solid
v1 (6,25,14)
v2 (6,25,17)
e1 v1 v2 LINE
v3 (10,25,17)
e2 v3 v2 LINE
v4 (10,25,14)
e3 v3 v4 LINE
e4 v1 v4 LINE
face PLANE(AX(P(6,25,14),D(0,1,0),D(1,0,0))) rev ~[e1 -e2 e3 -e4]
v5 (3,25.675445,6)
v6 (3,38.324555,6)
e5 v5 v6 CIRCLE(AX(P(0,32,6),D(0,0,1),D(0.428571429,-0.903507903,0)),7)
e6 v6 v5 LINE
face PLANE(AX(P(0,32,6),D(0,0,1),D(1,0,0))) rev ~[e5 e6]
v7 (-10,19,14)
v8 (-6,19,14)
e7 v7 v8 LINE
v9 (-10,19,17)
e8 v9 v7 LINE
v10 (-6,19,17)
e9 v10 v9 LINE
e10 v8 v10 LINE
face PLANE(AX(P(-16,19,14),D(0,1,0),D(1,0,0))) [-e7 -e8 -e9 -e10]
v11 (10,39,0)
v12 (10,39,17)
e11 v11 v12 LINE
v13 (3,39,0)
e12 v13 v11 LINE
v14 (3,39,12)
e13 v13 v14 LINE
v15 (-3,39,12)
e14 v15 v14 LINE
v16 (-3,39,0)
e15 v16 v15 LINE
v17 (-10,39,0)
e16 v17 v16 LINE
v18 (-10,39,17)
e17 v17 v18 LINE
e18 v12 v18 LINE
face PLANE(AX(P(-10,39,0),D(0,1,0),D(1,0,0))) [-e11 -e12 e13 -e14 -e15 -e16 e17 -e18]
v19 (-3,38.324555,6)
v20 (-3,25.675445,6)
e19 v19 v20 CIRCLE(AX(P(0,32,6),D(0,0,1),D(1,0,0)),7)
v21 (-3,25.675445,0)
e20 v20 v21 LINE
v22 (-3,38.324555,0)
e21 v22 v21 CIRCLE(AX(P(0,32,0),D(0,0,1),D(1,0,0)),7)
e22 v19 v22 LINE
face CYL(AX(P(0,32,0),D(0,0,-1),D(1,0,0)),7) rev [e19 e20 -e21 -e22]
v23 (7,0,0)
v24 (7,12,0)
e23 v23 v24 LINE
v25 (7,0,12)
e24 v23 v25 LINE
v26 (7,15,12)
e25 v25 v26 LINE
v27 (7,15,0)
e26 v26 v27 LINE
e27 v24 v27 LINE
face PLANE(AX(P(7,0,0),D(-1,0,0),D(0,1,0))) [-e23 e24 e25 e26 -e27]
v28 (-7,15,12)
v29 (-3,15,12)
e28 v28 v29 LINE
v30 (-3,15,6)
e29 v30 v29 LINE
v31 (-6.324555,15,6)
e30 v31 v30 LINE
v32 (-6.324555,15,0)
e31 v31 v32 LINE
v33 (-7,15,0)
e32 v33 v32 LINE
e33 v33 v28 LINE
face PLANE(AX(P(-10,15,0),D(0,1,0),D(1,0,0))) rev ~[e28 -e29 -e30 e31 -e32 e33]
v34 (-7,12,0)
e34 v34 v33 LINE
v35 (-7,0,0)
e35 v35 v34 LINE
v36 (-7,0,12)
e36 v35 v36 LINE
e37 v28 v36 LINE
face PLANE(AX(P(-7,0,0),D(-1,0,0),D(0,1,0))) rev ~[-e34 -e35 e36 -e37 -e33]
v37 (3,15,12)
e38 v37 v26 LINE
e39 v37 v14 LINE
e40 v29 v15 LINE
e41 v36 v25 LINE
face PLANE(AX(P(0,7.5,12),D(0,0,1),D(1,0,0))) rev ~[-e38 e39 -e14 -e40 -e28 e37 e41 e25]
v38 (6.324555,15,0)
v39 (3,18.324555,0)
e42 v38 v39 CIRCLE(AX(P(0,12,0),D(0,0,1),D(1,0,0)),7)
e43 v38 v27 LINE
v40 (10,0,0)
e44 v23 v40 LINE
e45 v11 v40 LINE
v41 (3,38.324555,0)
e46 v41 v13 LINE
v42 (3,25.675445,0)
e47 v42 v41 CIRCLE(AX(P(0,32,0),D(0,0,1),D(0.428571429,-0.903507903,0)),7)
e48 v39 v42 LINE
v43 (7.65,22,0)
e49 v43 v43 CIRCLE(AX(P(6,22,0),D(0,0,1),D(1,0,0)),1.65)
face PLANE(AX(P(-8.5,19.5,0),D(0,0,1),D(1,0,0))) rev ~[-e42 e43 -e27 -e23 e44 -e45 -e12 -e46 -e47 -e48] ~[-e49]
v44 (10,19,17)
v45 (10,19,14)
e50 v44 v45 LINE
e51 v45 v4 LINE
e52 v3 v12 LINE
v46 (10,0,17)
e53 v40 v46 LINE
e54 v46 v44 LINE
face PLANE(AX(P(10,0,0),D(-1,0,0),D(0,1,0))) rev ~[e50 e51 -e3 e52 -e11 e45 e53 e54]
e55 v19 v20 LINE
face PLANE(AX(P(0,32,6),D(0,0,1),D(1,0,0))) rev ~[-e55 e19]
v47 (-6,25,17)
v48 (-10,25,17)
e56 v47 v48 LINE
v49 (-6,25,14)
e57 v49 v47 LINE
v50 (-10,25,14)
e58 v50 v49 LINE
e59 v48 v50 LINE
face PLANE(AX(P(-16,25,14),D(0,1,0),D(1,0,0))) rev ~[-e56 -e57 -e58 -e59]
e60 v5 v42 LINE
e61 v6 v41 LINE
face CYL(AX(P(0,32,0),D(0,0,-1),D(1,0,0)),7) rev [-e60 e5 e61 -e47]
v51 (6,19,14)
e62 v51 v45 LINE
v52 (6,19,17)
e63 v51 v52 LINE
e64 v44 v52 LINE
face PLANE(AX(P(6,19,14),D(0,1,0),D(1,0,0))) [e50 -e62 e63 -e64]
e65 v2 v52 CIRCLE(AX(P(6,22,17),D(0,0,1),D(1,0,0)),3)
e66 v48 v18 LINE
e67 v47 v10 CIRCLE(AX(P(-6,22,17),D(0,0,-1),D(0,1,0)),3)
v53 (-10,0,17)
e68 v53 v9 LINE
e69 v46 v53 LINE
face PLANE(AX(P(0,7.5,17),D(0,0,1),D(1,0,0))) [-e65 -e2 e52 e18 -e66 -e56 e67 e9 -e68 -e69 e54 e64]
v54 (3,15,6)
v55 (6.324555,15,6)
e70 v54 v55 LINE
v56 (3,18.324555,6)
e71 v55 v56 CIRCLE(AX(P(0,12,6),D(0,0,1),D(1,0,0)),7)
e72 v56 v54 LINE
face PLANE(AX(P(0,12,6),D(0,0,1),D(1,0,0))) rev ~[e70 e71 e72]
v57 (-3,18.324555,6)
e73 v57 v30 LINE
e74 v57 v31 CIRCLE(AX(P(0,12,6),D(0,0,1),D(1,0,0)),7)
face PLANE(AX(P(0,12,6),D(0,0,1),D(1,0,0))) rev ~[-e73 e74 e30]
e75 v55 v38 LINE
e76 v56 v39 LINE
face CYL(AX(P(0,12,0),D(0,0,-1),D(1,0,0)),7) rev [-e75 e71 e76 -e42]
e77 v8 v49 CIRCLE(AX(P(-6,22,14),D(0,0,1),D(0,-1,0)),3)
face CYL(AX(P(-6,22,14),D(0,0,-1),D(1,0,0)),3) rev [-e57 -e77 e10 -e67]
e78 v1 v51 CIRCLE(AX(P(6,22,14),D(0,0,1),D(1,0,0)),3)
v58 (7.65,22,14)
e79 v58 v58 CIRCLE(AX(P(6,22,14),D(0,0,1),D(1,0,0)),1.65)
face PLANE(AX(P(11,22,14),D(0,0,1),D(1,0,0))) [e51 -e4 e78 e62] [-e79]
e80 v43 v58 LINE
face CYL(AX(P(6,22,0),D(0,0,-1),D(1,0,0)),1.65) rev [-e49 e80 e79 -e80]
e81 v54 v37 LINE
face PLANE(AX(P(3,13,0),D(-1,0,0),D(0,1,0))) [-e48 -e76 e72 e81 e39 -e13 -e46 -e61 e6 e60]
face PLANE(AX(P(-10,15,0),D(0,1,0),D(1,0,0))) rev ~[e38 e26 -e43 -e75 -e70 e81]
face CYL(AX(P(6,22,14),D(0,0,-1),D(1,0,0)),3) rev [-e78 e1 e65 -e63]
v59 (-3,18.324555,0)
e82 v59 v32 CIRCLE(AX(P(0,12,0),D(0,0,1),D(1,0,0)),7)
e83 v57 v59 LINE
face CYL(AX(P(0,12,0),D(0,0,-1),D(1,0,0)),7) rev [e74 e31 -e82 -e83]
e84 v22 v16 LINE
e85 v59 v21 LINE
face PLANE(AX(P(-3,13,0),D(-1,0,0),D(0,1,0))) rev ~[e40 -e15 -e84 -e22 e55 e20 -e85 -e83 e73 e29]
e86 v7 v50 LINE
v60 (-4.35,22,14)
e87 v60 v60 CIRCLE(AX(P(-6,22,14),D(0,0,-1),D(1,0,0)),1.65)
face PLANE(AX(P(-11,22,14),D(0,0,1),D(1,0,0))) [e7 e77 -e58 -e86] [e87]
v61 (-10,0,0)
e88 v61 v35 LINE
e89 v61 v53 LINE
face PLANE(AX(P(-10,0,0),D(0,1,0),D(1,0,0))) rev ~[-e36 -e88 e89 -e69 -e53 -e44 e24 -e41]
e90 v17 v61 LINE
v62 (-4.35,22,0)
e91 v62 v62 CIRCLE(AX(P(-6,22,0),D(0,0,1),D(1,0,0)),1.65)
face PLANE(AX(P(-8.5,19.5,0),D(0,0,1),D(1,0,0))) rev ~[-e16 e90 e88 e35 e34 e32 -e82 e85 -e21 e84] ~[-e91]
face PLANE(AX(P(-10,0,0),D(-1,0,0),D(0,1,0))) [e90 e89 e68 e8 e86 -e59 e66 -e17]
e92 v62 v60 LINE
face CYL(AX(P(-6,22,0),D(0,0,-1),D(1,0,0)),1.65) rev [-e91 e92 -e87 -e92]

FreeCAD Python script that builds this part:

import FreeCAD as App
import Part
import Sketcher
Q = App.Units.Quantity


def add_polygon(sketch, points):
    """Adds a closed chain of lines whose ends are joined by coincident constraints."""
    first, n = sketch.GeometryCount, len(points)
    for a, b in zip(points, points[1:] + points[:1]):
        sketch.addGeometry(Part.LineSegment(App.Vector(*a, 0), App.Vector(*b, 0)), False)
    for i in range(n):
        sketch.addConstraint(Sketcher.Constraint("Coincident", first + i, 2, first + (i + 1) % n, 1))

doc = App.newDocument("Part")
body = doc.addObject("PartDesign::Body", "Body")

# Sketch on XY plane
sketch1 = body.newObject("Sketcher::SketchObject", "Sketch")
sketch1.AttachmentSupport = (doc.getObject("XY_Plane"), [""])
sketch1.MapMode = "FlatFace"
sketch1.addGeometry(Part.Circle(App.Vector(6, 22, 0), App.Vector(0, 0, 1), 3), False)
sketch1.addConstraint([
    Sketcher.Constraint("Diameter", 0, Q("6 mm")),
    Sketcher.Constraint("DistanceX", -1, 1, 0, 3, Q("6 mm")),
    Sketcher.Constraint("DistanceY", -1, 1, 0, 3, Q("22 mm")),
])
pad1 = body.newObject("PartDesign::Pad", "Pad")
pad1.Profile = sketch1
pad1.Length = 3
body2 = doc.addObject("PartDesign::Body", "Body001")
body2.AllowCompound = True

# Sketch on XY plane
sketch2 = body2.newObject("Sketcher::SketchObject", "Sketch001")
sketch2.AttachmentSupport = (doc.getObject("XY_Plane001"), [""])
sketch2.MapMode = "FlatFace"
sketch2.addGeometry(Part.Circle(App.Vector(-6, 22, 0), App.Vector(0, 0, 1), 3), False)
sketch2.addConstraint([
    Sketcher.Constraint("Diameter", 0, Q("6 mm")),
    Sketcher.Constraint("DistanceX", 0, 3, -1, 1, Q("6 mm")),
    Sketcher.Constraint("DistanceY", -1, 1, 0, 3, Q("22 mm")),
])
pad2 = body2.newObject("PartDesign::Pad", "Pad001")
pad2.Profile = sketch2
pad2.Length = 3
doc.recompute()

boolean = body2.newObject("PartDesign::Boolean", "Boolean")
boolean.Type = "Fuse"
boolean.addObjects([body])
body3 = doc.addObject("PartDesign::Body", "Body002")
body3.AllowCompound = True
doc.recompute()

body2.Placement = App.Placement(App.Vector(0, 0, 14), App.Rotation(App.Vector(0, 0, 1), 0))
boolean2 = body3.newObject("PartDesign::Boolean", "Boolean001")
boolean2.Type = "Fuse"
boolean2.addObjects([body2])
body4 = doc.addObject("PartDesign::Body", "Body003")

# Sketch on XY plane
sketch3 = body4.newObject("Sketcher::SketchObject", "Sketch002")
sketch3.AttachmentSupport = (doc.getObject("XY_Plane003"), [""])
sketch3.MapMode = "FlatFace"
sketch3.AttachmentOffset = App.Placement(App.Vector(0, 0, 14), App.Rotation())
add_polygon(sketch3, [(6, 25), (6, 19), (16, 19), (16, 25)])  # lines 0-3
sketch3.addConstraint([
    Sketcher.Constraint("Vertical", 0),
    Sketcher.Constraint("Horizontal", 1),
    Sketcher.Constraint("Vertical", 2),
    Sketcher.Constraint("Horizontal", 3),
    Sketcher.Constraint("DistanceX", 1, 1, 1, 2, Q("10 mm")),
    Sketcher.Constraint("DistanceY", 0, 2, 0, 1, Q("6 mm")),
    Sketcher.Constraint("DistanceX", -1, 1, 0, 2, Q("6 mm")),
    Sketcher.Constraint("DistanceY", -1, 1, 0, 2, Q("19 mm")),
])
pad3 = body4.newObject("PartDesign::Pad", "Pad002")
pad3.Profile = sketch3
pad3.Length = 10
body5 = doc.addObject("PartDesign::Body", "Body004")
body5.AllowCompound = True

# Sketch on XY plane
sketch4 = body5.newObject("Sketcher::SketchObject", "Sketch003")
sketch4.AttachmentSupport = (doc.getObject("XY_Plane004"), [""])
sketch4.MapMode = "FlatFace"
sketch4.AttachmentOffset = App.Placement(App.Vector(0, 0, 14), App.Rotation())
add_polygon(sketch4, [(-16, 25), (-16, 19), (-6, 19), (-6, 25)])  # lines 0-3
sketch4.addConstraint([
    Sketcher.Constraint("Vertical", 0),
    Sketcher.Constraint("Horizontal", 1),
    Sketcher.Constraint("Vertical", 2),
    Sketcher.Constraint("Horizontal", 3),
    Sketcher.Constraint("DistanceX", 1, 1, 1, 2, Q("10 mm")),
    Sketcher.Constraint("DistanceY", 0, 2, 0, 1, Q("6 mm")),
    Sketcher.Constraint("DistanceX", 0, 2, -1, 1, Q("16 mm")),
    Sketcher.Constraint("DistanceY", -1, 1, 0, 2, Q("19 mm")),
])
pad4 = body5.newObject("PartDesign::Pad", "Pad003")
pad4.Profile = sketch4
pad4.Length = 10
doc.recompute()

boolean3 = body5.newObject("PartDesign::Boolean", "Boolean002")
boolean3.Type = "Fuse"
boolean3.addObjects([body4])
body6 = doc.addObject("PartDesign::Body", "Body005")

# Sketch on XY plane
sketch5 = body6.newObject("Sketcher::SketchObject", "Sketch004")
sketch5.AttachmentSupport = (doc.getObject("XY_Plane005"), [""])
sketch5.MapMode = "FlatFace"
sketch5.addGeometry(Part.Circle(App.Vector(-6, 22, 0), App.Vector(0, 0, 1), 1.6), False)
sketch5.addConstraint([
    Sketcher.Constraint("Diameter", 0, Q("3.3 mm")),
    Sketcher.Constraint("DistanceX", 0, 3, -1, 1, Q("6 mm")),
    Sketcher.Constraint("DistanceY", -1, 1, 0, 3, Q("22 mm")),
])
pad5 = body6.newObject("PartDesign::Pad", "Pad004")
pad5.Profile = sketch5
pad5.Length = 42
body7 = doc.addObject("PartDesign::Body", "Body006")
body7.AllowCompound = True

# Sketch on XY plane
sketch6 = body7.newObject("Sketcher::SketchObject", "Sketch005")
sketch6.AttachmentSupport = (doc.getObject("XY_Plane006"), [""])
sketch6.MapMode = "FlatFace"
sketch6.addGeometry(Part.Circle(App.Vector(6, 22, 0), App.Vector(0, 0, 1), 1.6), False)
sketch6.addConstraint([
    Sketcher.Constraint("Diameter", 0, Q("3.3 mm")),
    Sketcher.Constraint("DistanceX", -1, 1, 0, 3, Q("6 mm")),
    Sketcher.Constraint("DistanceY", -1, 1, 0, 3, Q("22 mm")),
])
pad6 = body7.newObject("PartDesign::Pad", "Pad005")
pad6.Profile = sketch6
pad6.Length = 42
doc.recompute()

boolean4 = body7.newObject("PartDesign::Boolean", "Boolean003")
boolean4.Type = "Fuse"
boolean4.addObjects([body6])
body8 = doc.addObject("PartDesign::Body", "Body007")

# Sketch on XY plane
sketch7 = body8.newObject("Sketcher::SketchObject", "Sketch006")
sketch7.AttachmentSupport = (doc.getObject("XY_Plane007"), [""])
sketch7.MapMode = "FlatFace"
add_polygon(sketch7, [(-3, 45), (-3, 13), (3, 13), (3, 45)])  # lines 0-3
sketch7.addConstraint([
    Sketcher.Constraint("Vertical", 0),
    Sketcher.Constraint("Horizontal", 1),
    Sketcher.Constraint("Vertical", 2),
    Sketcher.Constraint("Horizontal", 3),
    Sketcher.Constraint("DistanceX", 1, 1, 1, 2, Q("6 mm")),
    Sketcher.Constraint("DistanceY", 0, 2, 0, 1, Q("32 mm")),
    Sketcher.Constraint("DistanceX", 0, 2, -1, 1, Q("3 mm")),
    Sketcher.Constraint("DistanceY", -1, 1, 0, 2, Q("13 mm")),
])
pad7 = body8.newObject("PartDesign::Pad", "Pad006")
pad7.Profile = sketch7
pad7.Length = 12
body9 = doc.addObject("PartDesign::Body", "Body008")

# Sketch on XY plane
sketch8 = body9.newObject("Sketcher::SketchObject", "Sketch007")
sketch8.AttachmentSupport = (doc.getObject("XY_Plane008"), [""])
sketch8.MapMode = "FlatFace"
sketch8.addGeometry(Part.Circle(App.Vector(0, 32, 0), App.Vector(0, 0, 1), 7), False)
sketch8.addConstraint([
    Sketcher.Constraint("PointOnObject", 0, 3, -2),
    Sketcher.Constraint("Diameter", 0, Q("14 mm")),
    Sketcher.Constraint("DistanceY", -1, 1, 0, 3, Q("32 mm")),
])
pad8 = body9.newObject("PartDesign::Pad", "Pad007")
pad8.Profile = sketch8
pad8.Length = 6
body10 = doc.addObject("PartDesign::Body", "Body009")
body10.AllowCompound = True

# Sketch on XY plane
sketch9 = body10.newObject("Sketcher::SketchObject", "Sketch008")
sketch9.AttachmentSupport = (doc.getObject("XY_Plane009"), [""])
sketch9.MapMode = "FlatFace"
sketch9.addGeometry(Part.Circle(App.Vector(0, 12, 0), App.Vector(0, 0, 1), 7), False)
sketch9.addConstraint([
    Sketcher.Constraint("PointOnObject", 0, 3, -2),
    Sketcher.Constraint("Diameter", 0, Q("14 mm")),
    Sketcher.Constraint("DistanceY", -1, 1, 0, 3, Q("12 mm")),
])
pad9 = body10.newObject("PartDesign::Pad", "Pad008")
pad9.Profile = sketch9
pad9.Length = 6
doc.recompute()

boolean5 = body10.newObject("PartDesign::Boolean", "Boolean004")
boolean5.Type = "Fuse"
boolean5.addObjects([body9])
body11 = doc.addObject("PartDesign::Body", "Body010")

# Sketch on XY plane
sketch10 = body11.newObject("Sketcher::SketchObject", "Sketch009")
sketch10.AttachmentSupport = (doc.getObject("XY_Plane010"), [""])
sketch10.MapMode = "FlatFace"
add_polygon(sketch10, [(-10, 39), (-10, 15), (10, 15), (10, 39)])  # lines 0-3
sketch10.addConstraint([
    Sketcher.Constraint("Vertical", 0),
    Sketcher.Constraint("Horizontal", 1),
    Sketcher.Constraint("Vertical", 2),
    Sketcher.Constraint("Horizontal", 3),
    Sketcher.Constraint("DistanceX", 1, 1, 1, 2, Q("20 mm")),
    Sketcher.Constraint("DistanceY", 0, 2, 0, 1, Q("24 mm")),
    Sketcher.Constraint("DistanceX", 0, 2, -1, 1, Q("10 mm")),
    Sketcher.Constraint("DistanceY", -1, 1, 0, 2, Q("15 mm")),
])
pad10 = body11.newObject("PartDesign::Pad", "Pad009")
pad10.Profile = sketch10
pad10.Length = 17
body12 = doc.addObject("PartDesign::Body", "Body011")

# Sketch on XY plane
sketch11 = body12.newObject("Sketcher::SketchObject", "Sketch010")
sketch11.AttachmentSupport = (doc.getObject("XY_Plane011"), [""])
sketch11.MapMode = "FlatFace"
sketch11.AttachmentOffset = App.Placement(App.Vector(0, 0, 12), App.Rotation())
add_polygon(sketch11, [(-10, 15), (-10, 0), (10, 0), (10, 15)])  # lines 0-3
sketch11.addConstraint([
    Sketcher.Constraint("Vertical", 0),
    Sketcher.Constraint("Horizontal", 1),
    Sketcher.Constraint("Vertical", 2),
    Sketcher.Constraint("Horizontal", 3),
    Sketcher.Constraint("Symmetric", 0, 2, 1, 2, -1, 1),
    Sketcher.Constraint("DistanceX", 1, 1, 1, 2, Q("20 mm")),
    Sketcher.Constraint("DistanceY", 0, 2, 0, 1, Q("15 mm")),
])
pad11 = body12.newObject("PartDesign::Pad", "Pad010")
pad11.Profile = sketch11
pad11.Length = 5
body13 = doc.addObject("PartDesign::Body", "Body012")

# Sketch on XY plane
sketch12 = body13.newObject("Sketcher::SketchObject", "Sketch011")
sketch12.AttachmentSupport = (doc.getObject("XY_Plane012"), [""])
sketch12.MapMode = "FlatFace"
add_polygon(sketch12, [(-10, 39), (-10, 0), (-7, 0), (-7, 39)])  # lines 0-3
sketch12.addConstraint([
    Sketcher.Constraint("Vertical", 0),
    Sketcher.Constraint("Horizontal", 1),
    Sketcher.Constraint("Vertical", 2),
    Sketcher.Constraint("Horizontal", 3),
    Sketcher.Constraint("PointOnObject", 0, 2, -1),
    Sketcher.Constraint("DistanceX", 1, 1, 1, 2, Q("3 mm")),
    Sketcher.Constraint("DistanceY", 0, 2, 0, 1, Q("39 mm")),
    Sketcher.Constraint("DistanceX", 0, 2, -1, 1, Q("10 mm")),
])
pad12 = body13.newObject("PartDesign::Pad", "Pad011")
pad12.Profile = sketch12
pad12.Length = 17
body14 = doc.addObject("PartDesign::Body", "Body013")

# Sketch on XY plane
sketch13 = body14.newObject("Sketcher::SketchObject", "Sketch012")
sketch13.AttachmentSupport = (doc.getObject("XY_Plane013"), [""])
sketch13.MapMode = "FlatFace"
add_polygon(sketch13, [(7, 39), (7, 0), (10, 0), (10, 39)])  # lines 0-3
sketch13.addConstraint([
    Sketcher.Constraint("Vertical", 0),
    Sketcher.Constraint("Horizontal", 1),
    Sketcher.Constraint("Vertical", 2),
    Sketcher.Constraint("Horizontal", 3),
    Sketcher.Constraint("PointOnObject", 0, 2, -1),
    Sketcher.Constraint("DistanceX", 1, 1, 1, 2, Q("3 mm")),
    Sketcher.Constraint("DistanceY", 0, 2, 0, 1, Q("39 mm")),
    Sketcher.Constraint("DistanceX", -1, 1, 0, 2, Q("7 mm")),
])
pad13 = body14.newObject("PartDesign::Pad", "Pad012")
pad13.Profile = sketch13
pad13.Length = 17
doc.recompute()

boolean6 = body14.newObject("PartDesign::Boolean", "Boolean005")
boolean6.Type = "Fuse"
boolean6.addObjects([body11])
doc.recompute()

boolean7 = body14.newObject("PartDesign::Boolean", "Boolean006")
boolean7.Type = "Fuse"
boolean7.addObjects([body12])
doc.recompute()

boolean8 = body14.newObject("PartDesign::Boolean", "Boolean007")
boolean8.Type = "Fuse"
boolean8.addObjects([body13])
doc.recompute()

boolean9 = body14.newObject("PartDesign::Boolean", "Boolean008")
boolean9.Type = "Cut"
boolean9.addObjects([body10])
doc.recompute()

boolean10 = body14.newObject("PartDesign::Boolean", "Boolean009")
boolean10.Type = "Cut"
boolean10.addObjects([body8])
doc.recompute()

boolean11 = body14.newObject("PartDesign::Boolean", "Boolean010")
boolean11.Type = "Cut"
boolean11.addObjects([body7])
doc.recompute()

boolean12 = body14.newObject("PartDesign::Boolean", "Boolean011")
boolean12.Type = "Cut"
boolean12.addObjects([body5])
doc.recompute()

boolean13 = body14.newObject("PartDesign::Boolean", "Boolean012")
boolean13.Type = "Cut"
boolean13.addObjects([body3])

doc.recompute()
